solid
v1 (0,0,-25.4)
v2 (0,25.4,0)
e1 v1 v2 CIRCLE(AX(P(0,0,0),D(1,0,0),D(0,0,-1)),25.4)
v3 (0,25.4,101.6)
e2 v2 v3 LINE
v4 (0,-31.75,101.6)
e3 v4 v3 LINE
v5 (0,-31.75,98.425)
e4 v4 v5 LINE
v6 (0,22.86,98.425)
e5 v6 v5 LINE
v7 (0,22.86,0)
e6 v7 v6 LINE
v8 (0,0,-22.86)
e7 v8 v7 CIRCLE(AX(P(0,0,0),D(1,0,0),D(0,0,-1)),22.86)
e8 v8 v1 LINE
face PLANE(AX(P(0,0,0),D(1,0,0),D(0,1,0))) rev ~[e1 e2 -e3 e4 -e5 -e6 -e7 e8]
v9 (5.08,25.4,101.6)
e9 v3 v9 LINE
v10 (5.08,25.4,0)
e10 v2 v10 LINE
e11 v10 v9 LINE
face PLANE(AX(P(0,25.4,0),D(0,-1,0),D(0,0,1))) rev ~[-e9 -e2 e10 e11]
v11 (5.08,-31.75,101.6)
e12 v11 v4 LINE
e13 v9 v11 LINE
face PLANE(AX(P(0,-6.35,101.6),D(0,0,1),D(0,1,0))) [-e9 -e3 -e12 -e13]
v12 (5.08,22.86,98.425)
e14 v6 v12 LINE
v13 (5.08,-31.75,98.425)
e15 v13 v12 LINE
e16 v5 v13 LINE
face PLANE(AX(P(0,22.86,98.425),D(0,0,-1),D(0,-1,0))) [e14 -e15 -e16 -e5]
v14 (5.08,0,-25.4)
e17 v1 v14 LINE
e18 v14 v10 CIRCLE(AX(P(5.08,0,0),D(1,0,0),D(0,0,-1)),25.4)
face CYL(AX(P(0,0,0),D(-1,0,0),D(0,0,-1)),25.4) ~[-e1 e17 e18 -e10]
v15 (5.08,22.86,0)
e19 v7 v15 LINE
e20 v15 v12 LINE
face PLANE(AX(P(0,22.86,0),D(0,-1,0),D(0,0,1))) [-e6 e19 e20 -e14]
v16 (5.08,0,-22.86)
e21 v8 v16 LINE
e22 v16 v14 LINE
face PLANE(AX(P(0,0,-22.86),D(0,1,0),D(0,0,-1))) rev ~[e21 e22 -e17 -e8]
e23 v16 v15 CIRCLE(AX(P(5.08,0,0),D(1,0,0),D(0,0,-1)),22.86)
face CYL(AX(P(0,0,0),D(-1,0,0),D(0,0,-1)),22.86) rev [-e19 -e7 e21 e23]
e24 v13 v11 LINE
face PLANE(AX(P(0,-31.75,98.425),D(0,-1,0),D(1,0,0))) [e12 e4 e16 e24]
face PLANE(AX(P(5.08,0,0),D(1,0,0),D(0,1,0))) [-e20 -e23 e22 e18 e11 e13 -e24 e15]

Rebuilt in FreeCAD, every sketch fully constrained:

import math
import FreeCAD as App
import Part
import Sketcher
Q = App.Units.Quantity

doc = App.newDocument("Part")
body = doc.addObject("PartDesign::Body", "Body")

# Sketch on YZ plane
sketch1 = body.newObject("Sketcher::SketchObject", "Sketch")
sketch1.AttachmentSupport = (doc.getObject("YZ_Plane"), [""])
sketch1.MapMode = "FlatFace"
sketch1.addGeometry(Part.LineSegment(App.Vector(0, -22.86, 0), App.Vector(0, -25.4, 0)), False)
sketch1.addGeometry(Part.ArcOfCircle(Part.Circle(App.Vector(0, 0, 0), App.Vector(0, 0, 1), 25.4), math.radians(-90), math.radians(0)), False)
sketch1.addGeometry(Part.LineSegment(App.Vector(25.4, 0, 0), App.Vector(25.4, 101.6, 0)), False)
sketch1.addGeometry(Part.LineSegment(App.Vector(25.4, 101.6, 0), App.Vector(-6.35, 101.6, 0)), False)
sketch1.addGeometry(Part.LineSegment(App.Vector(-6.35, 101.6, 0), App.Vector(-6.35, 98.425, 0)), False)
sketch1.addGeometry(Part.LineSegment(App.Vector(-6.35, 98.425, 0), App.Vector(22.86, 98.425, 0)), False)
sketch1.addGeometry(Part.LineSegment(App.Vector(22.86, 98.425, 0), App.Vector(22.86, 0, 0)), False)
sketch1.addGeometry(Part.ArcOfCircle(Part.Circle(App.Vector(0, 0, 0), App.Vector(0, 0, 1), 22.86), math.radians(-90), math.radians(0)), False)
sketch1.addConstraint(Sketcher.Constraint("Coincident", 0, 2, 1, 1))
sketch1.addConstraint(Sketcher.Constraint("Tangent", 1, 2, 2, 1))
sketch1.addConstraint(Sketcher.Constraint("Coincident", 2, 2, 3, 1))
sketch1.addConstraint(Sketcher.Constraint("Coincident", 3, 2, 4, 1))
sketch1.addConstraint(Sketcher.Constraint("Coincident", 4, 2, 5, 1))
sketch1.addConstraint(Sketcher.Constraint("Coincident", 5, 2, 6, 1))
sketch1.addConstraint(Sketcher.Constraint("Tangent", 6, 2, 7, 2))
sketch1.addConstraint(Sketcher.Constraint("Coincident", 7, 1, 0, 1))
sketch1.addConstraint(Sketcher.Constraint("Vertical", 0))
sketch1.addConstraint(Sketcher.Constraint("Vertical", 2))
sketch1.addConstraint(Sketcher.Constraint("Horizontal", 3))
sketch1.addConstraint(Sketcher.Constraint("Vertical", 4))
sketch1.addConstraint(Sketcher.Constraint("Horizontal", 5))
sketch1.addConstraint(Sketcher.Constraint("Vertical", 6))
sketch1.addConstraint(Sketcher.Constraint("Coincident", 1, 3, -1, 1))
sketch1.addConstraint(Sketcher.Constraint("Coincident", 7, 3, -1, 1))
sketch1.addConstraint(Sketcher.Constraint("PointOnObject", 0, 2, -2))
sketch1.addConstraint(Sketcher.Constraint("Radius", 1, Q("1 in")))
sketch1.addConstraint(Sketcher.Constraint("Radius", 7, Q("0.9 in")))
sketch1.addConstraint(Sketcher.Constraint("DistanceY", 2, 1, 2, 2, Q("4 in")))
sketch1.addConstraint(Sketcher.Constraint("DistanceX", 3, 2, 3, 1, Q("1.25 in")))
sketch1.addConstraint(Sketcher.Constraint("DistanceY", 4, 2, 4, 1, Q("0.125 in")))
pad1 = body.newObject("PartDesign::Pad", "Pad")
pad1.Profile = sketch1
pad1.Length = Q("0.2 in")

# Sketch on XZ plane
sketch2 = body.newObject("Sketcher::SketchObject", "Sketch001")
sketch2.AttachmentSupport = (doc.getObject("XZ_Plane"), [""])
sketch2.MapMode = "FlatFace"
sketch2.AttachmentOffset = App.Placement(App.Vector(0, 0, 0.25 * 25.4), App.Rotation())
sketch2.addGeometry(Part.LineSegment(App.Vector(0, 98.425, 0), App.Vector(5.08, 98.425, 0)), False)
sketch2.addGeometry(Part.LineSegment(App.Vector(5.08, 98.425, 0), App.Vector(5.08, 101.6, 0)), False)
sketch2.addGeometry(Part.LineSegment(App.Vector(5.08, 101.6, 0), App.Vector(0, 101.6, 0)), False)
sketch2.addGeometry(Part.LineSegment(App.Vector(0, 101.6, 0), App.Vector(0, 98.425, 0)), False)
sketch2.addConstraint(Sketcher.Constraint("Coincident", 0, 2, 1, 1))
sketch2.addConstraint(Sketcher.Constraint("Coincident", 1, 2, 2, 1))
sketch2.addConstraint(Sketcher.Constraint("Coincident", 2, 2, 3, 1))
sketch2.addConstraint(Sketcher.Constraint("Coincident", 3, 2, 0, 1))
sketch2.addConstraint(Sketcher.Constraint("Horizontal", 0))
sketch2.addConstraint(Sketcher.Constraint("Vertical", 1))
sketch2.addConstraint(Sketcher.Constraint("Horizontal", 2))
sketch2.addConstraint(Sketcher.Constraint("Vertical", 3))
sketch2.addConstraint(Sketcher.Constraint("PointOnObject", 2, 2, -2))
sketch2.addConstraint(Sketcher.Constraint("DistanceX", 0, 1, 0, 2, Q("0.2 in")))
sketch2.addConstraint(Sketcher.Constraint("DistanceY", -1, 1, 1, 2, Q("4 in")))
sketch2.addConstraint(Sketcher.Constraint("DistanceY", 1, 1, 1, 2, Q("0.125 in")))
pad2 = body.newObject("PartDesign::Pad", "Pad001")
pad2.Profile = sketch2
pad2.Length = Q("1 in")

doc.recompute()
